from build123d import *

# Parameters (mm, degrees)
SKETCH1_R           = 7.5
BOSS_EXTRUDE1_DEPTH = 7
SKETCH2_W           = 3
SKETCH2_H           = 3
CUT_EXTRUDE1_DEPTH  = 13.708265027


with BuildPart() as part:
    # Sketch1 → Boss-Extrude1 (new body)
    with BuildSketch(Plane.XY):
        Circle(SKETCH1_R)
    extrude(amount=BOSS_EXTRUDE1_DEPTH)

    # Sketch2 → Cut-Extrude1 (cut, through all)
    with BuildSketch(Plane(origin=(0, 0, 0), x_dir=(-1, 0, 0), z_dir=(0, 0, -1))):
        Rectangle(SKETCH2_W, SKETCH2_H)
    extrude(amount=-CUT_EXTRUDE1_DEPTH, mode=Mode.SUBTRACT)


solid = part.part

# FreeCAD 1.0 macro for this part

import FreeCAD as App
import Part
import Sketcher


def add_polygon(sketch, points):
    """Adds a closed chain of lines whose ends are joined by coincident constraints."""
    first, n = sketch.GeometryCount, len(points)
    for a, b in zip(points, points[1:] + points[:1]):
        sketch.addGeometry(Part.LineSegment(App.Vector(*a, 0), App.Vector(*b, 0)), False)
    for i in range(n):
        sketch.addConstraint(Sketcher.Constraint("Coincident", first + i, 2, first + (i + 1) % n, 1))

doc = App.newDocument("Part")
body = doc.addObject("PartDesign::Body", "Body")

sketch1 = doc.addObject("Sketcher::SketchObject", "Sketch")
body.addObject(sketch1)
sketch1.AttachmentSupport = (doc.XY_Plane, [""])
sketch1.MapMode = "FlatFace"
sketch1.addGeometry(Part.Circle(App.Vector(0, 0, 0), App.Vector(0, 0, 1), 7.5), False)
sketch1.addConstraint(Sketcher.Constraint("Coincident", 0, 3, -1, 1))
sketch1.addConstraint(Sketcher.Constraint("Diameter", 0, 15.0))
pad1 = doc.addObject("PartDesign::Pad", "Pad")
body.addObject(pad1)
pad1.Profile = sketch1
pad1.Length = 7

sketch2 = doc.addObject("Sketcher::SketchObject", "Sketch001")
body.addObject(sketch2)
sketch2.AttachmentSupport = (doc.XY_Plane, [""])
sketch2.MapMode = "FlatFace"
add_polygon(sketch2, [(1.5, 1.5), (1.5, -1.5), (-1.5, -1.5), (-1.5, 1.5)])
sketch2.addConstraint(Sketcher.Constraint("Vertical", 0))
sketch2.addConstraint(Sketcher.Constraint("Horizontal", 1))
sketch2.addConstraint(Sketcher.Constraint("Vertical", 2))
sketch2.addConstraint(Sketcher.Constraint("Horizontal", 3))
sketch2.addConstraint(Sketcher.Constraint("Symmetric", 0, 2, 2, 2, -1, 1))
sketch2.addConstraint(Sketcher.Constraint("Equal", 3, 0))
sketch2.addConstraint(Sketcher.Constraint("DistanceX", 1, 2, 1, 1, 3.0))
pocket1 = doc.addObject("PartDesign::Pocket", "Pocket")
body.addObject(pocket1)
pocket1.Profile = sketch2
pocket1.Type = "ThroughAll"
pocket1.Reversed = True

doc.recompute()
